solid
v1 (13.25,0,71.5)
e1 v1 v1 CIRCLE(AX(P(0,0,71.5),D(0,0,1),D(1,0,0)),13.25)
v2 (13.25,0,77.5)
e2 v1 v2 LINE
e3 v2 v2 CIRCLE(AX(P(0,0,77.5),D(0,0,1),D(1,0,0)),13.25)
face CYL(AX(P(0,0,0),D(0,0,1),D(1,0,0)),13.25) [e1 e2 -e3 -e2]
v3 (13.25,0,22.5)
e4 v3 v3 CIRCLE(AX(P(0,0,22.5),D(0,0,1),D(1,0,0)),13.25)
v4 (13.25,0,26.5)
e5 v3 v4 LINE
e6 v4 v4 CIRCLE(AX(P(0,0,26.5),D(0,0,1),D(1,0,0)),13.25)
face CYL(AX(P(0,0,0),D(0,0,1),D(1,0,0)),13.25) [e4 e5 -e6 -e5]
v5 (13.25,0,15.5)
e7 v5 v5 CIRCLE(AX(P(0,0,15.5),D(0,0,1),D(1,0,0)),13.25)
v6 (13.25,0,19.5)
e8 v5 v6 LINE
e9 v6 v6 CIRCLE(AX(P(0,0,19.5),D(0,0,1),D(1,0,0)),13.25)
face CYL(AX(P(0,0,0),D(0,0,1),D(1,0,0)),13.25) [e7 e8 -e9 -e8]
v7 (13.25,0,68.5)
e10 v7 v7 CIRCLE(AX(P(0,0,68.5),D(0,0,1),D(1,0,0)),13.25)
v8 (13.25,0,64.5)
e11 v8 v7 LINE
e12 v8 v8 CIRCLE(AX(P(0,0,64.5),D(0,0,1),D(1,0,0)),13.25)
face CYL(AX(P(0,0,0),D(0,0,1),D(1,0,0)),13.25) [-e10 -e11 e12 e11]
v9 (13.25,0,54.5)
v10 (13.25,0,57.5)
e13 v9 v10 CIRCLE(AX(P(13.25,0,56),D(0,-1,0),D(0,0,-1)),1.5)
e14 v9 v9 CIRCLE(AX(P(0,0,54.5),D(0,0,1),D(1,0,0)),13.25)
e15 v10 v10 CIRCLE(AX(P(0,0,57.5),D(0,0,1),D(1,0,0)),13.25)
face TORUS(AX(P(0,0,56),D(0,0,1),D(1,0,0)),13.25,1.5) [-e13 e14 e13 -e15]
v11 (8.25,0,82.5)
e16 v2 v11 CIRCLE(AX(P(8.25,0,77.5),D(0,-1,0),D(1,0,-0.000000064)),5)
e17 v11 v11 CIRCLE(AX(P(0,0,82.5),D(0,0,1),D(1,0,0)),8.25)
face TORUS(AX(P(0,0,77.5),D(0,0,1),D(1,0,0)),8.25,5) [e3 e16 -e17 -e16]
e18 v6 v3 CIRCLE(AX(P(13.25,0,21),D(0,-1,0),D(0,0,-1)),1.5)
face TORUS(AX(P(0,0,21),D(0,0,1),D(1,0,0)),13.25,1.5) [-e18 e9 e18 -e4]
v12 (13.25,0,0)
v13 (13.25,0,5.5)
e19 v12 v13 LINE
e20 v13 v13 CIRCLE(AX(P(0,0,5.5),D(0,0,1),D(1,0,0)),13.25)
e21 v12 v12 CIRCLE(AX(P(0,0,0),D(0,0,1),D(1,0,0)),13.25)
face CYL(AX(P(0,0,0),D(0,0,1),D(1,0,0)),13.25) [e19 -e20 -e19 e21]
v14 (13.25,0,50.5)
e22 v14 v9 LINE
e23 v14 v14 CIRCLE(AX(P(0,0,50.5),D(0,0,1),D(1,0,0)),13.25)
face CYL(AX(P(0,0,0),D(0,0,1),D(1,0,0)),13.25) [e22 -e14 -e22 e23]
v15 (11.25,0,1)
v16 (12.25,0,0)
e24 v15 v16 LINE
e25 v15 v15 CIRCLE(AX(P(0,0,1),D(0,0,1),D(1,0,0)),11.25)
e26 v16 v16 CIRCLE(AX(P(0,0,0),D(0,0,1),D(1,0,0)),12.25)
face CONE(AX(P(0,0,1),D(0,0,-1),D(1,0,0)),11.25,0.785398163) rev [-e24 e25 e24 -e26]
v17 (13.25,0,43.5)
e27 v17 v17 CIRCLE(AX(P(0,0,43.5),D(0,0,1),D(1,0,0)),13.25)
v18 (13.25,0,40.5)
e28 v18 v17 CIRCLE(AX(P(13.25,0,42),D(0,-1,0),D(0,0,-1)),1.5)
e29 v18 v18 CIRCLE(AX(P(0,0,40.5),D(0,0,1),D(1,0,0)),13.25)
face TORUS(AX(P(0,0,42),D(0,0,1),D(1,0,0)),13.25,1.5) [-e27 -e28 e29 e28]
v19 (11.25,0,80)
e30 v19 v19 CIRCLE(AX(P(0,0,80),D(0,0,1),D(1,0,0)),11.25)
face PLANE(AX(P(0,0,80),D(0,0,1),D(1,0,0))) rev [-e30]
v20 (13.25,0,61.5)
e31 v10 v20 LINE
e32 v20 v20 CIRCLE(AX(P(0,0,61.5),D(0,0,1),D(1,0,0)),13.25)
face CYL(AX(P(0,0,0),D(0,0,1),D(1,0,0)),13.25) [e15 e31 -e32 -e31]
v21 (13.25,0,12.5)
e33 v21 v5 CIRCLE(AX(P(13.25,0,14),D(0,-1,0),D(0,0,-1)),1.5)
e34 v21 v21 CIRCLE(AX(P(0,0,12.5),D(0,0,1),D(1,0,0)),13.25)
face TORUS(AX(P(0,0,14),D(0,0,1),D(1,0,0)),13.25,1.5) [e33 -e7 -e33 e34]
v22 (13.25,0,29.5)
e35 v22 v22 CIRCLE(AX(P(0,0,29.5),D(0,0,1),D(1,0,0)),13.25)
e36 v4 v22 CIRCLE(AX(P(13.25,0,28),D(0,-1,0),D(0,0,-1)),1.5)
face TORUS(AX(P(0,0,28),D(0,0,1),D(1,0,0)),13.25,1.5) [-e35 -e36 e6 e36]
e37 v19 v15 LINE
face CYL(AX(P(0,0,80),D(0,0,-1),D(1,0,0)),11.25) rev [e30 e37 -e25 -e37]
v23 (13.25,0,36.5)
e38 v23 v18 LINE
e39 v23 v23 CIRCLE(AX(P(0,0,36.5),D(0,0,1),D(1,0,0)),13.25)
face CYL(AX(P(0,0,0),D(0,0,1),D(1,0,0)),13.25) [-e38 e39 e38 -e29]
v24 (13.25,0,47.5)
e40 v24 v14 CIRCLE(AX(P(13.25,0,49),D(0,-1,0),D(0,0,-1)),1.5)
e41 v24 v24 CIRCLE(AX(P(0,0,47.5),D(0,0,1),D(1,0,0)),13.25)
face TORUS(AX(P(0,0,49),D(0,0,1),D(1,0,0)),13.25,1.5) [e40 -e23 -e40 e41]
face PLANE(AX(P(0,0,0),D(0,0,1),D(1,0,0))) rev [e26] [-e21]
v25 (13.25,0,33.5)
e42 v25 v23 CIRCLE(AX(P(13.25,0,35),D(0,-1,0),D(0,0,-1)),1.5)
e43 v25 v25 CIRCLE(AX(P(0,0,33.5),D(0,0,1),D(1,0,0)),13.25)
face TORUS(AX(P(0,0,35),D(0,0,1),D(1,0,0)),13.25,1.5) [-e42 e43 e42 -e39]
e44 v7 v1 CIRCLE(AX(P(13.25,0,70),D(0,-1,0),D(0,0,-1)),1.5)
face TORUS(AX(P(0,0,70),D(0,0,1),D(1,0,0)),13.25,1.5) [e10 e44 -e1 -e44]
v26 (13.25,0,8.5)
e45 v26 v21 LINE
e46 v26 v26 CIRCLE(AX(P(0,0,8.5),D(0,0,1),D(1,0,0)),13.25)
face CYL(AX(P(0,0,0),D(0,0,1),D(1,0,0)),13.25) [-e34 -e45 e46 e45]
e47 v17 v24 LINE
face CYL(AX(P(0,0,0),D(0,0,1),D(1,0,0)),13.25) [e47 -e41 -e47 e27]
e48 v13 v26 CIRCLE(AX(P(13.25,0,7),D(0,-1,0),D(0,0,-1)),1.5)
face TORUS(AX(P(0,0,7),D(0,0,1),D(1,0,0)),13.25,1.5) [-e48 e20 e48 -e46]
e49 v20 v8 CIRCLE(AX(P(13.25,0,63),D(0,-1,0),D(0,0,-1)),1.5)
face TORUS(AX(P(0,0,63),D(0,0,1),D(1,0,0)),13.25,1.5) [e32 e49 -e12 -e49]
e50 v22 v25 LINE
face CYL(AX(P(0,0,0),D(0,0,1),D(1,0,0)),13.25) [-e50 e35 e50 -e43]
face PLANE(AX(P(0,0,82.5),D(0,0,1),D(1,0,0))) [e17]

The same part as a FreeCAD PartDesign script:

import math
import FreeCAD as App
import Part
import Sketcher

V = App.Vector


def edges_at(feature, points):
    """Names of the edges that pass closest to the given points."""
    edges = feature.Shape.Edges
    near = lambda p: min(range(len(edges)), key=lambda i: edges[i].distToShape(Part.Vertex(*p))[0])
    return sorted({f"Edge{near(p) + 1}" for p in points})

doc = App.newDocument("Part")
body = doc.addObject("PartDesign::Body", "Body")

# Sketch on XZ plane
sketch1 = body.newObject("Sketcher::SketchObject", "Sketch")
sketch1.AttachmentSupport = (doc.getObject("XZ_Plane"), [""])
sketch1.MapMode = "FlatFace"
sketch1.addGeometry(Part.LineSegment(V(0, 82.5, 0), V(0, 80, 0)), False)
sketch1.addGeometry(Part.LineSegment(V(0, 80, 0), V(11.2, 80, 0)), False)
sketch1.addGeometry(Part.LineSegment(V(11.2, 80, 0), V(11.2, 0, 0)), False)
sketch1.addGeometry(Part.LineSegment(V(11.2, 0, 0), V(13.2, 0, 0)), False)
sketch1.addGeometry(Part.LineSegment(V(13.2, 0, 0), V(13.2, 5.5, 0)), False)
sketch1.addGeometry(Part.ArcOfCircle(Part.Circle(V(13.2, 7, 0), V(0, 0, 1), 1.5), math.radians(-90), math.radians(90)), False)
sketch1.addGeometry(Part.LineSegment(V(13.2, 8.5, 0), V(13.2, 12.5, 0)), False)
sketch1.addGeometry(Part.ArcOfCircle(Part.Circle(V(13.2, 14, 0), V(0, 0, 1), 1.5), math.radians(-90), math.radians(90)), False)
sketch1.addGeometry(Part.LineSegment(V(13.2, 15.5, 0), V(13.2, 19.5, 0)), False)
sketch1.addGeometry(Part.ArcOfCircle(Part.Circle(V(13.2, 21, 0), V(0, 0, 1), 1.5), math.radians(-90), math.radians(90)), False)
sketch1.addGeometry(Part.LineSegment(V(13.2, 22.5, 0), V(13.2, 26.5, 0)), False)
sketch1.addGeometry(Part.ArcOfCircle(Part.Circle(V(13.2, 28, 0), V(0, 0, 1), 1.5), math.radians(-90), math.radians(90)), False)
sketch1.addGeometry(Part.LineSegment(V(13.2, 29.5, 0), V(13.2, 33.5, 0)), False)
sketch1.addGeometry(Part.ArcOfCircle(Part.Circle(V(13.2, 35, 0), V(0, 0, 1), 1.5), math.radians(-90), math.radians(90)), False)
sketch1.addGeometry(Part.LineSegment(V(13.2, 36.5, 0), V(13.2, 40.5, 0)), False)
sketch1.addGeometry(Part.ArcOfCircle(Part.Circle(V(13.2, 42, 0), V(0, 0, 1), 1.5), math.radians(-90), math.radians(90)), False)
sketch1.addGeometry(Part.LineSegment(V(13.2, 43.5, 0), V(13.2, 47.5, 0)), False)
sketch1.addGeometry(Part.ArcOfCircle(Part.Circle(V(13.2, 49, 0), V(0, 0, 1), 1.5), math.radians(-90), math.radians(90)), False)
sketch1.addGeometry(Part.LineSegment(V(13.2, 50.5, 0), V(13.2, 54.5, 0)), False)
sketch1.addGeometry(Part.ArcOfCircle(Part.Circle(V(13.2, 56, 0), V(0, 0, 1), 1.5), math.radians(-90), math.radians(90)), False)
sketch1.addGeometry(Part.LineSegment(V(13.2, 57.5, 0), V(13.2, 61.5, 0)), False)
sketch1.addGeometry(Part.ArcOfCircle(Part.Circle(V(13.2, 63, 0), V(0, 0, 1), 1.5), math.radians(-90), math.radians(90)), False)
sketch1.addGeometry(Part.LineSegment(V(13.2, 64.5, 0), V(13.2, 68.5, 0)), False)
sketch1.addGeometry(Part.ArcOfCircle(Part.Circle(V(13.2, 70, 0), V(0, 0, 1), 1.5), math.radians(-90), math.radians(90)), False)
sketch1.addGeometry(Part.LineSegment(V(13.2, 71.5, 0), V(13.2, 77.5, 0)), False)
sketch1.addGeometry(Part.ArcOfCircle(Part.Circle(V(8.3, 77.5, 0), V(0, 0, 1), 5), math.radians(0), math.radians(90)), False)
sketch1.addGeometry(Part.LineSegment(V(8.2, 82.5, 0), V(0, 82.5, 0)), False)
sketch1.addConstraint(Sketcher.Constraint("Coincident", 0, 2, 1, 1))
sketch1.addConstraint(Sketcher.Constraint("Coincident", 1, 2, 2, 1))
sketch1.addConstraint(Sketcher.Constraint("Coincident", 2, 2, 3, 1))
sketch1.addConstraint(Sketcher.Constraint("Coincident", 3, 2, 4, 1))
sketch1.addConstraint(Sketcher.Constraint("Coincident", 4, 2, 5, 1))
sketch1.addConstraint(Sketcher.Constraint("Coincident", 5, 2, 6, 1))
sketch1.addConstraint(Sketcher.Constraint("Coincident", 6, 2, 7, 1))
sketch1.addConstraint(Sketcher.Constraint("Coincident", 7, 2, 8, 1))
sketch1.addConstraint(Sketcher.Constraint("Coincident", 8, 2, 9, 1))
sketch1.addConstraint(Sketcher.Constraint("Coincident", 9, 2, 10, 1))
sketch1.addConstraint(Sketcher.Constraint("Coincident", 10, 2, 11, 1))
sketch1.addConstraint(Sketcher.Constraint("Coincident", 11, 2, 12, 1))
sketch1.addConstraint(Sketcher.Constraint("Coincident", 12, 2, 13, 1))
sketch1.addConstraint(Sketcher.Constraint("Coincident", 13, 2, 14, 1))
sketch1.addConstraint(Sketcher.Constraint("Coincident", 14, 2, 15, 1))
sketch1.addConstraint(Sketcher.Constraint("Coincident", 15, 2, 16, 1))
sketch1.addConstraint(Sketcher.Constraint("Coincident", 16, 2, 17, 1))
sketch1.addConstraint(Sketcher.Constraint("Coincident", 17, 2, 18, 1))
sketch1.addConstraint(Sketcher.Constraint("Coincident", 18, 2, 19, 1))
sketch1.addConstraint(Sketcher.Constraint("Coincident", 19, 2, 20, 1))
sketch1.addConstraint(Sketcher.Constraint("Coincident", 20, 2, 21, 1))
sketch1.addConstraint(Sketcher.Constraint("Coincident", 21, 2, 22, 1))
sketch1.addConstraint(Sketcher.Constraint("Coincident", 22, 2, 23, 1))
sketch1.addConstraint(Sketcher.Constraint("Coincident", 23, 2, 24, 1))
sketch1.addConstraint(Sketcher.Constraint("Tangent", 24, 2, 25, 1))
sketch1.addConstraint(Sketcher.Constraint("Tangent", 25, 2, 26, 1))
sketch1.addConstraint(Sketcher.Constraint("Coincident", 26, 2, 0, 1))
sketch1.addConstraint(Sketcher.Constraint("Vertical", 0))
sketch1.addConstraint(Sketcher.Constraint("Horizontal", 1))
sketch1.addConstraint(Sketcher.Constraint("Vertical", 2))
sketch1.addConstraint(Sketcher.Constraint("Horizontal", 3))
sketch1.addConstraint(Sketcher.Constraint("Vertical", 4))
sketch1.addConstraint(Sketcher.Constraint("Vertical", 6))
sketch1.addConstraint(Sketcher.Constraint("Vertical", 8))
sketch1.addConstraint(Sketcher.Constraint("Vertical", 10))
sketch1.addConstraint(Sketcher.Constraint("Vertical", 12))
sketch1.addConstraint(Sketcher.Constraint("Vertical", 14))
sketch1.addConstraint(Sketcher.Constraint("Vertical", 16))
sketch1.addConstraint(Sketcher.Constraint("Vertical", 18))
sketch1.addConstraint(Sketcher.Constraint("Vertical", 20))
sketch1.addConstraint(Sketcher.Constraint("Vertical", 22))
sketch1.addConstraint(Sketcher.Constraint("Vertical", 24))
sketch1.addConstraint(Sketcher.Constraint("Horizontal", 26))
sketch1.addConstraint(Sketcher.Constraint("Equal", 5, 7))
sketch1.addConstraint(Sketcher.Constraint("Equal", 7, 9))
sketch1.addConstraint(Sketcher.Constraint("Equal", 9, 11))
sketch1.addConstraint(Sketcher.Constraint("Equal", 11, 13))
sketch1.addConstraint(Sketcher.Constraint("Equal", 13, 15))
sketch1.addConstraint(Sketcher.Constraint("Equal", 15, 17))
sketch1.addConstraint(Sketcher.Constraint("Equal", 17, 19))
sketch1.addConstraint(Sketcher.Constraint("Equal", 19, 21))
sketch1.addConstraint(Sketcher.Constraint("Equal", 21, 23))
sketch1.addConstraint(Sketcher.Constraint("PointOnObject", 0, 2, -2))
sketch1.addConstraint(Sketcher.Constraint("PointOnObject", 2, 2, -1))
sketch1.addConstraint(Sketcher.Constraint("Vertical", 5, 3, 7, 3))
sketch1.addConstraint(Sketcher.Constraint("Vertical", 7, 3, 9, 3))
sketch1.addConstraint(Sketcher.Constraint("Vertical", 9, 3, 11, 3))
sketch1.addConstraint(Sketcher.Constraint("Vertical", 11, 3, 13, 3))
sketch1.addConstraint(Sketcher.Constraint("Vertical", 13, 3, 15, 3))
sketch1.addConstraint(Sketcher.Constraint("Vertical", 15, 3, 17, 3))
sketch1.addConstraint(Sketcher.Constraint("Vertical", 17, 3, 19, 3))
sketch1.addConstraint(Sketcher.Constraint("Vertical", 19, 3, 21, 3))
sketch1.addConstraint(Sketcher.Constraint("Vertical", 21, 3, 23, 3))
sketch1.addConstraint(Sketcher.Constraint("Vertical", 23, 3, 3, 2))
sketch1.addConstraint(Sketcher.Constraint("Vertical", 4, 2, 5, 2))
sketch1.addConstraint(Sketcher.Constraint("Vertical", 6, 2, 7, 2))
sketch1.addConstraint(Sketcher.Constraint("Vertical", 8, 2, 9, 2))
sketch1.addConstraint(Sketcher.Constraint("Vertical", 10, 2, 11, 2))
sketch1.addConstraint(Sketcher.Constraint("Vertical", 12, 2, 13, 2))
sketch1.addConstraint(Sketcher.Constraint("Vertical", 14, 2, 15, 2))
sketch1.addConstraint(Sketcher.Constraint("Vertical", 16, 2, 17, 2))
sketch1.addConstraint(Sketcher.Constraint("Vertical", 18, 2, 19, 2))
sketch1.addConstraint(Sketcher.Constraint("Vertical", 20, 2, 21, 2))
sketch1.addConstraint(Sketcher.Constraint("Vertical", 22, 2, 23, 2))
sketch1.addConstraint(Sketcher.Constraint("Equal", 6, 8))
sketch1.addConstraint(Sketcher.Constraint("Equal", 8, 10))
sketch1.addConstraint(Sketcher.Constraint("Equal", 10, 12))
sketch1.addConstraint(Sketcher.Constraint("Equal", 12, 14))
sketch1.addConstraint(Sketcher.Constraint("Equal", 14, 16))
sketch1.addConstraint(Sketcher.Constraint("Equal", 16, 18))
sketch1.addConstraint(Sketcher.Constraint("Equal", 18, 20))
sketch1.addConstraint(Sketcher.Constraint("Equal", 20, 22))
sketch1.addConstraint(Sketcher.Constraint("Radius", 25, 5.0))
sketch1.addConstraint(Sketcher.Constraint("Radius", 5, 1.5))
sketch1.addConstraint(Sketcher.Constraint("DistanceX", 3, 1, 3, 2, 2.0))
sketch1.addConstraint(Sketcher.Constraint("DistanceY", 2, 2, 2, 1, 80.0))
sketch1.addConstraint(Sketcher.Constraint("DistanceY", 6, 1, 6, 2, 4.0))
sketch1.addConstraint(Sketcher.Constraint("DistanceY", 24, 1, 24, 2, 6.0))
sketch1.addConstraint(Sketcher.Constraint("DistanceY", 0, 2, 0, 1, 2.5))
sketch1.addConstraint(Sketcher.Constraint("DistanceX", 1, 1, 1, 2, 11.25))
revolution = body.newObject("PartDesign::Revolution", "Revolution")
revolution.Profile = sketch1
revolution.ReferenceAxis = (sketch1, ["V_Axis"])
revolution.Angle = 360
doc.recompute()

chamfer = body.newObject("PartDesign::Chamfer", "Chamfer")
chamfer.Base = (revolution, edges_at(revolution, [(-11.25, 0, 0)]))
chamfer.Size = 1

doc.recompute()
